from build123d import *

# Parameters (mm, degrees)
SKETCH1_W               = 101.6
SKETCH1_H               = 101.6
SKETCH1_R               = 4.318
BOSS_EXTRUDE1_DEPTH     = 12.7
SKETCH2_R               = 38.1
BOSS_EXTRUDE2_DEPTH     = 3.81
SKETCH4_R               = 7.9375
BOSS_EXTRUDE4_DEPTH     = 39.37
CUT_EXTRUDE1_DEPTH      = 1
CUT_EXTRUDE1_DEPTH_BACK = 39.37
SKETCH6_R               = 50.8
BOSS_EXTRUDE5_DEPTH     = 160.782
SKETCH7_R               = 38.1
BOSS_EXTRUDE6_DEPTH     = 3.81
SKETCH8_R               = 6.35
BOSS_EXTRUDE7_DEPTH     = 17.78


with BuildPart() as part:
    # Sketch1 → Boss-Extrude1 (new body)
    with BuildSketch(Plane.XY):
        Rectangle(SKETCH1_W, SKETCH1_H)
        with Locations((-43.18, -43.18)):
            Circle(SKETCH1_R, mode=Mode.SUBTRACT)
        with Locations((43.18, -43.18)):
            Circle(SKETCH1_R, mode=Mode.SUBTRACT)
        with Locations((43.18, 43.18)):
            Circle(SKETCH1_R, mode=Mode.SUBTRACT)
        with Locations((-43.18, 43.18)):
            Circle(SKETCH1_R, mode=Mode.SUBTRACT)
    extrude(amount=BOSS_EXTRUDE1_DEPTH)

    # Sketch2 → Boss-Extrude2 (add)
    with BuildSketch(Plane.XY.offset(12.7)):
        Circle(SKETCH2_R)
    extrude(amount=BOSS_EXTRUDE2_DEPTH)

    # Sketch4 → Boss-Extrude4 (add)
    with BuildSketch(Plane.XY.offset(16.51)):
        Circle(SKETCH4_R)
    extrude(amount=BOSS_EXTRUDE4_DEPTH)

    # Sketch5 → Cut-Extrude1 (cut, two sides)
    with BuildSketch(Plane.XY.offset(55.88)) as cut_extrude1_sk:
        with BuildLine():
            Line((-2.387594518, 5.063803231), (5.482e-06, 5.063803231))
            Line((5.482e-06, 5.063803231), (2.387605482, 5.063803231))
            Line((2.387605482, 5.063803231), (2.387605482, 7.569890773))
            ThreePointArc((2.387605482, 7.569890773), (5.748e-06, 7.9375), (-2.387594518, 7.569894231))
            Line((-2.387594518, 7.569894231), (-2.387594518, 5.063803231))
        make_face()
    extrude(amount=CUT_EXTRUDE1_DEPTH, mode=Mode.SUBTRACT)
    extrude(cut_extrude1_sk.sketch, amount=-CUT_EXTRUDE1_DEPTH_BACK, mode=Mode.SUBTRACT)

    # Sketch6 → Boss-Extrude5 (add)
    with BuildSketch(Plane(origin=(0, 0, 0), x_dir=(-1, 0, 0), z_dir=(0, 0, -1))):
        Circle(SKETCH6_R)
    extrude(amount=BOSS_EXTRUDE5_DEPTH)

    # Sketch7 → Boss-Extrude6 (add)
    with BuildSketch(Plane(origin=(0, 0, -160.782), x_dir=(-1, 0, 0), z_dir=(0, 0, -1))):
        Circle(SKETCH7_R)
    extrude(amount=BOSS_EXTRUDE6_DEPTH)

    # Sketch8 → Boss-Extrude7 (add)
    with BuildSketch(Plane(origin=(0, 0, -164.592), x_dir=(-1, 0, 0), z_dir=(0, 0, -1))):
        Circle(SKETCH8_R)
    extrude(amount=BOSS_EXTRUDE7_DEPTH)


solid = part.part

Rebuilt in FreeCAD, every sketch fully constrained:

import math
import FreeCAD as App
import Part
import Sketcher

V = App.Vector
Q = App.Units.Quantity

doc = App.newDocument("Part")
body = doc.addObject("PartDesign::Body", "Body")

# Sketch on XY plane
sketch1 = body.newObject("Sketcher::SketchObject", "Sketch")
sketch1.AttachmentSupport = (doc.getObject("XY_Plane"), [""])
sketch1.MapMode = "FlatFace"
sketch1.addGeometry([
    Part.LineSegment(V(-50.8, 50.8, 0), V(-50.8, -50.8, 0)),  # 0
    Part.LineSegment(V(-50.8, -50.8, 0), V(50.8, -50.8, 0)),  # 1
    Part.LineSegment(V(50.8, -50.8, 0), V(50.8, 50.8, 0)),  # 2
    Part.LineSegment(V(50.8, 50.8, 0), V(-50.8, 50.8, 0)),  # 3
    Part.Circle(V(-43.18, -43.18, 0), V(0, 0, 1), 4.318),  # 4
    Part.Circle(V(43.18, -43.18, 0), V(0, 0, 1), 4.318),  # 5
    Part.Circle(V(-43.18, 43.18, 0), V(0, 0, 1), 4.318),  # 6
    Part.Circle(V(43.18, 43.18, 0), V(0, 0, 1), 4.318),  # 7
], False)
sketch1.addConstraint([
    Sketcher.Constraint("Coincident", 0, 2, 1, 1),
    Sketcher.Constraint("Coincident", 1, 2, 2, 1),
    Sketcher.Constraint("Coincident", 2, 2, 3, 1),
    Sketcher.Constraint("Coincident", 3, 2, 0, 1),
    Sketcher.Constraint("Vertical", 0),
    Sketcher.Constraint("Horizontal", 1),
    Sketcher.Constraint("Vertical", 2),
    Sketcher.Constraint("Horizontal", 3),
    Sketcher.Constraint("Equal", 4, 5),
    Sketcher.Constraint("Equal", 5, 6),
    Sketcher.Constraint("Equal", 6, 7),
    Sketcher.Constraint("Symmetric", 5, 3, 6, 3, -1, 1),
    Sketcher.Constraint("Symmetric", 4, 3, 7, 3, -1, 1),
    Sketcher.Constraint("Symmetric", 0, 2, 2, 2, -1, 1),
    Sketcher.Constraint("Symmetric", 4, 3, 5, 3, -2),
    Sketcher.Constraint("Equal", 3, 0),
    Sketcher.Constraint("Diameter", 4, Q("0.34 in")),
    Sketcher.Constraint("DistanceX", 1, 1, 1, 2, Q("4 in")),
    Sketcher.Constraint("DistanceX", 4, 3, -1, 1, Q("1.7 in")),
    Sketcher.Constraint("DistanceY", 4, 3, -1, 1, Q("1.7 in")),
])
pad1 = body.newObject("PartDesign::Pad", "Pad")
pad1.Profile = sketch1
pad1.Length = Q("0.5 in")

# Sketch on XY plane
sketch2 = body.newObject("Sketcher::SketchObject", "Sketch001")
sketch2.AttachmentSupport = (doc.getObject("XY_Plane"), [""])
sketch2.MapMode = "FlatFace"
sketch2.AttachmentOffset = App.Placement(V(0, 0, 0.5 * 25.4), App.Rotation())
sketch2.addGeometry(Part.Circle(V(0, 0, 0), V(0, 0, 1), 38.1), False)
sketch2.addConstraint([
    Sketcher.Constraint("Coincident", 0, 3, -1, 1),
    Sketcher.Constraint("Diameter", 0, Q("3 in")),
])
pad2 = body.newObject("PartDesign::Pad", "Pad001")
pad2.Profile = sketch2
pad2.Length = Q("0.15 in")

# Sketch on XY plane
sketch3 = body.newObject("Sketcher::SketchObject", "Sketch002")
sketch3.AttachmentSupport = (doc.getObject("XY_Plane"), [""])
sketch3.MapMode = "FlatFace"
sketch3.AttachmentOffset = App.Placement(V(0, 0, 0.65 * 25.4), App.Rotation())
sketch3.addGeometry(Part.Circle(V(0, 0, 0), V(0, 0, 1), 7.9375), False)
sketch3.addConstraint([
    Sketcher.Constraint("Coincident", 0, 3, -1, 1),
    Sketcher.Constraint("Diameter", 0, Q("0.625 in")),
])
pad3 = body.newObject("PartDesign::Pad", "Pad002")
pad3.Profile = sketch3
pad3.Length = Q("1.55 in")

# Sketch on XY plane
sketch4 = body.newObject("Sketcher::SketchObject", "Sketch003")
sketch4.AttachmentSupport = (doc.getObject("XY_Plane"), [""])
sketch4.MapMode = "FlatFace"
sketch4.AttachmentOffset = App.Placement(V(0, 0, 2.2 * 25.4), App.Rotation())
sketch4.addGeometry([
    Part.LineSegment(V(-2.387595, 5.063803, 0), V(2.387605, 5.063803, 0)),
    Part.LineSegment(V(2.387605, 5.063803, 0), V(2.387605, 7.569891, 0)),
    Part.ArcOfCircle(Part.Circle(V(0, 0, 0), V(0, 0, 1), 7.9375), math.radians(72.494299), math.radians(107.505618)),
    Part.LineSegment(V(-2.387595, 7.569894, 0), V(-2.387595, 5.063803, 0)),
], False)
sketch4.addConstraint([
    Sketcher.Constraint("Coincident", 0, 2, 1, 1),
    Sketcher.Constraint("Coincident", 1, 2, 2, 1),
    Sketcher.Constraint("Coincident", 2, 2, 3, 1),
    Sketcher.Constraint("Coincident", 3, 2, 0, 1),
    Sketcher.Constraint("Horizontal", 0),
    Sketcher.Constraint("Vertical", 1),
    Sketcher.Constraint("Vertical", 3),
    Sketcher.Constraint("Coincident", 2, 3, -1, 1),
    Sketcher.Constraint("Radius", 2, Q("0.3125 in")),
    Sketcher.Constraint("DistanceX", 0, 1, 0, 2, Q("0.188 in")),
    Sketcher.Constraint("DistanceY", 3, 2, 3, 1, 2.506091),
    Sketcher.Constraint("DistanceY", 1, 1, 1, 2, 2.506088),
])
pocket1 = body.newObject("PartDesign::Pocket", "Pocket")
pocket1.Profile = sketch4
pocket1.Type = "TwoLengths"
pocket1.Length = 1
pocket1.Length2 = Q("1.55 in")
pocket1.Reversed = True

# Sketch on XY plane
sketch5 = body.newObject("Sketcher::SketchObject", "Sketch004")
sketch5.AttachmentSupport = (doc.getObject("XY_Plane"), [""])
sketch5.MapMode = "FlatFace"
sketch5.addGeometry(Part.Circle(V(0, 0, 0), V(0, 0, 1), 50.8), False)
sketch5.addConstraint([
    Sketcher.Constraint("Coincident", 0, 3, -1, 1),
    Sketcher.Constraint("Diameter", 0, Q("4 in")),
])
pad4 = body.newObject("PartDesign::Pad", "Pad003")
pad4.Profile = sketch5
pad4.Length = Q("6.33 in")
pad4.Reversed = True

# Sketch on XY plane
sketch6 = body.newObject("Sketcher::SketchObject", "Sketch005")
sketch6.AttachmentSupport = (doc.getObject("XY_Plane"), [""])
sketch6.MapMode = "FlatFace"
sketch6.AttachmentOffset = App.Placement(V(0, 0, -6.33 * 25.4), App.Rotation())
sketch6.addGeometry(Part.Circle(V(0, 0, 0), V(0, 0, 1), 38.1), False)
sketch6.addConstraint([
    Sketcher.Constraint("Coincident", 0, 3, -1, 1),
    Sketcher.Constraint("Diameter", 0, Q("3 in")),
])
pad5 = body.newObject("PartDesign::Pad", "Pad004")
pad5.Profile = sketch6
pad5.Length = Q("0.15 in")
pad5.Reversed = True

# Sketch on XY plane
sketch7 = body.newObject("Sketcher::SketchObject", "Sketch006")
sketch7.AttachmentSupport = (doc.getObject("XY_Plane"), [""])
sketch7.MapMode = "FlatFace"
sketch7.AttachmentOffset = App.Placement(V(0, 0, -6.48 * 25.4), App.Rotation())
sketch7.addGeometry(Part.Circle(V(0, 0, 0), V(0, 0, 1), 6.35), False)
sketch7.addConstraint([
    Sketcher.Constraint("Coincident", 0, 3, -1, 1),
    Sketcher.Constraint("Diameter", 0, Q("0.5 in")),
])
pad6 = body.newObject("PartDesign::Pad", "Pad005")
pad6.Profile = sketch7
pad6.Length = Q("0.7 in")
pad6.Reversed = True

doc.recompute()
